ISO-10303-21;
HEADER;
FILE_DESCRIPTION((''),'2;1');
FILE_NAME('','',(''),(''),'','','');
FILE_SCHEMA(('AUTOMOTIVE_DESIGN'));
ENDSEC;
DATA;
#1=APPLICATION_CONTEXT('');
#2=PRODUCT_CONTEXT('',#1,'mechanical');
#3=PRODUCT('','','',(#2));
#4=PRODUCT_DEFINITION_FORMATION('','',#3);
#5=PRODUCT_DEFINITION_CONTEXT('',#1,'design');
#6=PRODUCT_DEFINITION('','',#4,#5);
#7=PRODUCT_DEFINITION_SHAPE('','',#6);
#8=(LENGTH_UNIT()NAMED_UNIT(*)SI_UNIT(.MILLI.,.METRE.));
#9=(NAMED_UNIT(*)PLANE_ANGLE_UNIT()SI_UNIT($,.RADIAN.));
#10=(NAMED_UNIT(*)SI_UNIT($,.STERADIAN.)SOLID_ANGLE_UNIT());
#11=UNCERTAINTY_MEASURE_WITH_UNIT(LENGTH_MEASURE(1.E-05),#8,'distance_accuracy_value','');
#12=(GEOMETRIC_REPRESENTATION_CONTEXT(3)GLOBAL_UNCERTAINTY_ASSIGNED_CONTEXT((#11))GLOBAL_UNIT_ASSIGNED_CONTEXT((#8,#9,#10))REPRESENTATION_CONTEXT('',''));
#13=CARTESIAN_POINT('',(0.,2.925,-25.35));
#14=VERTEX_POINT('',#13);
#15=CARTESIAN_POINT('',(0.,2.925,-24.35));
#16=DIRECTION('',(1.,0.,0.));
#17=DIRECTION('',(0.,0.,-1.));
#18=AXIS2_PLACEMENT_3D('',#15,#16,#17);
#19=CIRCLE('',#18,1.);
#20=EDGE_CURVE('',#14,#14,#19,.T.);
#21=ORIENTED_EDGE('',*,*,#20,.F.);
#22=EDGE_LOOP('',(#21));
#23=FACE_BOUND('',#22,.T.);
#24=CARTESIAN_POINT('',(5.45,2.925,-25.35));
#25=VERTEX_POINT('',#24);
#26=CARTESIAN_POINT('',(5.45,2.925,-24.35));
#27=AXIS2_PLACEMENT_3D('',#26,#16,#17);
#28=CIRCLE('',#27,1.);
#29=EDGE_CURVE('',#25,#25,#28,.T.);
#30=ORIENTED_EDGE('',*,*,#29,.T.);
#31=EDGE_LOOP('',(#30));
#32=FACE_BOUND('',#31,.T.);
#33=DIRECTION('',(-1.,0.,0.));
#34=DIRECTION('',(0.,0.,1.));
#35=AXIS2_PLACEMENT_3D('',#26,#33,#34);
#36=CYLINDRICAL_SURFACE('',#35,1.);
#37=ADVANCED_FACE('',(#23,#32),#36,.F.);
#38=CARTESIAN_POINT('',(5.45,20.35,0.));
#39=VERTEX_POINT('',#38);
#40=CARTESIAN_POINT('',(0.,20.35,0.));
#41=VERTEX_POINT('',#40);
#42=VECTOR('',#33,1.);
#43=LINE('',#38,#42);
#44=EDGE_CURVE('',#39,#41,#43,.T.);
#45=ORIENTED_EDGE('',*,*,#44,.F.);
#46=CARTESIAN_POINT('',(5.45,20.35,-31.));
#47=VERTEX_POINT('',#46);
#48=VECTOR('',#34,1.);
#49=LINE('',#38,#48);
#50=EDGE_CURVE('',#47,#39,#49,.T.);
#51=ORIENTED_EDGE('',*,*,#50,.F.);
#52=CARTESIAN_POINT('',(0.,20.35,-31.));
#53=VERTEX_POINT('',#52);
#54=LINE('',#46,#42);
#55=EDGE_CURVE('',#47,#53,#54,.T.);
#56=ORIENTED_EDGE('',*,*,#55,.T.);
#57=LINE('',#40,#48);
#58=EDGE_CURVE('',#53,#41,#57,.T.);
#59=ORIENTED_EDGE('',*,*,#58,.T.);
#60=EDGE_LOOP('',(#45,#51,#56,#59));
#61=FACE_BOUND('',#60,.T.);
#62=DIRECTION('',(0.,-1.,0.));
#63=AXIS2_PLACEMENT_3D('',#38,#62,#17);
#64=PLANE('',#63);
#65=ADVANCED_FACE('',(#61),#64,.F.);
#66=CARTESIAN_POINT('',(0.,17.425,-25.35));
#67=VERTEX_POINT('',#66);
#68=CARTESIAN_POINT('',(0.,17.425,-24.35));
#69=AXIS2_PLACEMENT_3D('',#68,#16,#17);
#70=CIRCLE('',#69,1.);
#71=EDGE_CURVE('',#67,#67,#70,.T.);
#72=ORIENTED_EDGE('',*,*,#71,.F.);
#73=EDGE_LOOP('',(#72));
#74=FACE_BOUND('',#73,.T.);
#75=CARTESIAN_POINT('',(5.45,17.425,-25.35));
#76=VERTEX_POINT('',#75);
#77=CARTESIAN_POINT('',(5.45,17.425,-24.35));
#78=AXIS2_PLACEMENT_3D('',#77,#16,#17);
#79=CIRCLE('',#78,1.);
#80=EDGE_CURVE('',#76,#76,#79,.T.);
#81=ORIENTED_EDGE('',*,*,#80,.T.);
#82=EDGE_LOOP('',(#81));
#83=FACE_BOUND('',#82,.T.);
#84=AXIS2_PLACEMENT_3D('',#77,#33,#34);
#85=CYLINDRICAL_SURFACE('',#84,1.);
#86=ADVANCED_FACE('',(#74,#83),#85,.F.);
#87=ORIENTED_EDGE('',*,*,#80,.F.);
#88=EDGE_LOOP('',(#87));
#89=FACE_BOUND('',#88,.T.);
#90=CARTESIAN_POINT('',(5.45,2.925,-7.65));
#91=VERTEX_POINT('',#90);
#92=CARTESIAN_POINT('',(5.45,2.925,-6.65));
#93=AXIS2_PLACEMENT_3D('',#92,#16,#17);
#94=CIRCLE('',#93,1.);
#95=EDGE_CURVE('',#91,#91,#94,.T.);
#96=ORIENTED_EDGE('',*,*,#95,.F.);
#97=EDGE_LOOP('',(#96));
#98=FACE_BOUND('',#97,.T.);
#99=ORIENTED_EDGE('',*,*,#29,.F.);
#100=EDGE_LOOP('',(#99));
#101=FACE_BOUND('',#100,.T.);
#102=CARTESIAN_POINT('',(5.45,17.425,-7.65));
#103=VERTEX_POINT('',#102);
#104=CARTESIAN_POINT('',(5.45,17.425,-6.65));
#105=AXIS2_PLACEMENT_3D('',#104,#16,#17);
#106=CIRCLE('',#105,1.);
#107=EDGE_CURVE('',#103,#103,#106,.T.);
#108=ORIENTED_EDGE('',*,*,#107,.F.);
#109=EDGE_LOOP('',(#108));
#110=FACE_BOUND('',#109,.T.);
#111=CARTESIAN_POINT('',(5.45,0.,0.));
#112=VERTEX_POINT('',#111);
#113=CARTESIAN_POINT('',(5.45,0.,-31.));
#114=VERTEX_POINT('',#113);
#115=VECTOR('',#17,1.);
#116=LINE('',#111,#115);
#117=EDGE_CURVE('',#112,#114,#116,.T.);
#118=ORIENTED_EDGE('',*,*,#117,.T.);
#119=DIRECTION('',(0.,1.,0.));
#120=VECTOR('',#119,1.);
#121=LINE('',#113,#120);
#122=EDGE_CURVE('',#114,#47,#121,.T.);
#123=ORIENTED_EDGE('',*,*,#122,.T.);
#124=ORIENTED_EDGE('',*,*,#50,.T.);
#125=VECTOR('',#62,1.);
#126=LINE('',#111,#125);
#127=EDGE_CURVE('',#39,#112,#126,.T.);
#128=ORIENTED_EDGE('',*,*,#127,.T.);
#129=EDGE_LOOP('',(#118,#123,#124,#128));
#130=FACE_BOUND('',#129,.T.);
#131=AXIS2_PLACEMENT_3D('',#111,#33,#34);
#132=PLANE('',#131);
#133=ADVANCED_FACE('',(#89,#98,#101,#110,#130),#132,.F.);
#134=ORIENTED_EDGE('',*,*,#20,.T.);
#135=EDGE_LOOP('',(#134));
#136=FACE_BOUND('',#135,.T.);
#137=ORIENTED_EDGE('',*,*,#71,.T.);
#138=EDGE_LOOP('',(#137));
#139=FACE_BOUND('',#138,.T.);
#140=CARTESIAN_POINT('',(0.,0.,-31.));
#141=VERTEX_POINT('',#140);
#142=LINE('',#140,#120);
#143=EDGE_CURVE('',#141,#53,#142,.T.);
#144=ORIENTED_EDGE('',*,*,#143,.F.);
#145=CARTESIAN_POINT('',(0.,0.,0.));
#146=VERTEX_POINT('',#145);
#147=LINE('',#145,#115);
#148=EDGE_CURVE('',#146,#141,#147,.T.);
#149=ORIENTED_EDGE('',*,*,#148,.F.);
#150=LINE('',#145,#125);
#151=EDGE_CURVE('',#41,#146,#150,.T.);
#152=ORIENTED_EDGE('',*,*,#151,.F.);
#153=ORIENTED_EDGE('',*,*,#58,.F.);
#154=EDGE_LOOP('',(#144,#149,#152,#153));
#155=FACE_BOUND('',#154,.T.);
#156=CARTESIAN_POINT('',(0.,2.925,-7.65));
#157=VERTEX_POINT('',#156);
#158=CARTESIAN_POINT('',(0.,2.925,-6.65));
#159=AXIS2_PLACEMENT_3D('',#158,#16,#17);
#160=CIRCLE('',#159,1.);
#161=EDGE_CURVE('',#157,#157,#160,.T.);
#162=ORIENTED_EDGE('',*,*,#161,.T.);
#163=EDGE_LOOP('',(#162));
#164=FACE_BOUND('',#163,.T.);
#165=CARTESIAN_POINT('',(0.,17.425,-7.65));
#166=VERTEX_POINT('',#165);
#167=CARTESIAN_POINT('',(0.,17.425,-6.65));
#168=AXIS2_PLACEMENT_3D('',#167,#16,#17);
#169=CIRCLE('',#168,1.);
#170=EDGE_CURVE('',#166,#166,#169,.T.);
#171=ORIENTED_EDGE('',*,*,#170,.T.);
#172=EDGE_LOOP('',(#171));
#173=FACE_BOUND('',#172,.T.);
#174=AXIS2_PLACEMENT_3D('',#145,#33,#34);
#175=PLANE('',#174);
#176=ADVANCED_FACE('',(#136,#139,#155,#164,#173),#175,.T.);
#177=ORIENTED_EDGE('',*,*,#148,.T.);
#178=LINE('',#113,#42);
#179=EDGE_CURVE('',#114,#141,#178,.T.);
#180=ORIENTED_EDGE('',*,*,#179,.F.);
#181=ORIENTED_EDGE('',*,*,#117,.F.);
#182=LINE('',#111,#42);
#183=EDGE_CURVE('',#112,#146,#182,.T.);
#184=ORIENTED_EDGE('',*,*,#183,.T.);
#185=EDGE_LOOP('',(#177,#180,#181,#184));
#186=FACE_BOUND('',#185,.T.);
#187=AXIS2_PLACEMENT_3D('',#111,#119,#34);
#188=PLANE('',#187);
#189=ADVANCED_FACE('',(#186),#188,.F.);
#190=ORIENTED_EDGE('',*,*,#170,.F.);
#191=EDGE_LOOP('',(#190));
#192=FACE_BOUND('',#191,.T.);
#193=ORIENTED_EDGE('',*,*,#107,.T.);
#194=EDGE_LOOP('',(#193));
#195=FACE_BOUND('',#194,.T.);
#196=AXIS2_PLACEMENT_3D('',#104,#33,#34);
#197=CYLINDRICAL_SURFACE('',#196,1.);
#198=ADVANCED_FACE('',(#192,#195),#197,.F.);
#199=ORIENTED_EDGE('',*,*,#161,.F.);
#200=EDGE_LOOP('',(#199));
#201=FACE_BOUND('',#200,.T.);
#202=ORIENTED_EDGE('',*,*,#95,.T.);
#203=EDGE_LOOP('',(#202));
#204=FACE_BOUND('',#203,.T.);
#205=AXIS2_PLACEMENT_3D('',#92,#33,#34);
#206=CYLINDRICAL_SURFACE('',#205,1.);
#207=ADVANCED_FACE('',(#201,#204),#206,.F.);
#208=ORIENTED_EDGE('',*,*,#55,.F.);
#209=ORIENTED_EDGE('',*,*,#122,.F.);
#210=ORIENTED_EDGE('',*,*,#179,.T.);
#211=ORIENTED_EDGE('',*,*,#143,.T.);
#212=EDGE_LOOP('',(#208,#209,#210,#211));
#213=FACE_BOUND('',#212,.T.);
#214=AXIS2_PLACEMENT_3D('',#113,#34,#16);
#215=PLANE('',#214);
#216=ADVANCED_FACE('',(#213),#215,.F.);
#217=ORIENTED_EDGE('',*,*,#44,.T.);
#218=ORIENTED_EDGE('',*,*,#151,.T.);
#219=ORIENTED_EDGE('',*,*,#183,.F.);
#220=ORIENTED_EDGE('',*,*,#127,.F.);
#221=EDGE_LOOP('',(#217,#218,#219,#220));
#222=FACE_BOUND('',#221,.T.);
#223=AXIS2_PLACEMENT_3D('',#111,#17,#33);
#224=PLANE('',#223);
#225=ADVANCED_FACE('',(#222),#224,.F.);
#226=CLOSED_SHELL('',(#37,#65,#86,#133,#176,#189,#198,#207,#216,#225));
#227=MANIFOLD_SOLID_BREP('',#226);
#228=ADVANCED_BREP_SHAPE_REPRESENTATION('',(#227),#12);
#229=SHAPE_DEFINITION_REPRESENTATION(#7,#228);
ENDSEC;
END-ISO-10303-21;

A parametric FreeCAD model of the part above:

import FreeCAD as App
import Part
import Sketcher

V = App.Vector


def add_polygon(sketch, points):
    """Adds a closed chain of lines whose ends are joined by coincident constraints."""
    first, n = sketch.GeometryCount, len(points)
    for a, b in zip(points, points[1:] + points[:1]):
        sketch.addGeometry(Part.LineSegment(App.Vector(*a, 0), App.Vector(*b, 0)), False)
    for i in range(n):
        sketch.addConstraint(Sketcher.Constraint("Coincident", first + i, 2, first + (i + 1) % n, 1))

doc = App.newDocument("Part")
params = doc.addObject("Spreadsheet::Sheet", "Params")
for row, (alias, value) in enumerate([
    ("sketch1_diameter", "2 mm"),
    ("sketch1_height", "31 mm"),
    ("sketch1_width", "20.35 mm"),
    ("pad1_length", "5.45 mm"),
], start=1):
    params.set(f"A{row}", alias)
    params.set(f"B{row}", "=" + value)
    params.setAlias(f"B{row}", alias)

body = doc.addObject("PartDesign::Body", "Body")

sketch1 = doc.addObject("Sketcher::SketchObject", "Sketch")
body.addObject(sketch1)
sketch1.AttachmentSupport = (doc.YZ_Plane, [""])
sketch1.MapMode = "FlatFace"
add_polygon(sketch1, [(20.35, 0), (0, 0), (0, -31), (20.35, -31)])
sketch1.addGeometry(Part.Circle(V(2.925, -6.65, 0), V(0, 0, 1), 1), False)
sketch1.addGeometry(Part.Circle(V(2.925, -24.35, 0), V(0, 0, 1), 1), False)
sketch1.addGeometry(Part.Circle(V(17.425, -6.65, 0), V(0, 0, 1), 1), False)
sketch1.addGeometry(Part.Circle(V(17.425, -24.35, 0), V(0, 0, 1), 1), False)
sketch1.addConstraint([
    Sketcher.Constraint("Horizontal", 0),
    Sketcher.Constraint("Vertical", 1),
    Sketcher.Constraint("Horizontal", 2),
    Sketcher.Constraint("Vertical", 3),
    Sketcher.Constraint("Coincident", 0, 2, -1, 1),
    Sketcher.Constraint("Equal", 4, 5),
    Sketcher.Constraint("Equal", 5, 6),
    Sketcher.Constraint("Equal", 6, 7),
    Sketcher.Constraint("Horizontal", 4, 3, 6, 3),
    Sketcher.Constraint("Horizontal", 5, 3, 7, 3),
    Sketcher.Constraint("Vertical", 4, 3, 5, 3),
    Sketcher.Constraint("Vertical", 6, 3, 7, 3),
    Sketcher.Constraint("Diameter", 4, 2.0),
    Sketcher.Constraint("DistanceY", 1, 2, 1, 1, 31.0),
    Sketcher.Constraint("DistanceX", 0, 2, 0, 1, 20.35),
    Sketcher.Constraint("DistanceY", 5, 3, 4, 3, 17.7),
    Sketcher.Constraint("DistanceX", 4, 3, 6, 3, 14.5),
    Sketcher.Constraint("DistanceY", 4, 3, -1, 1, 6.65),
    Sketcher.Constraint("DistanceX", -1, 1, 4, 3, 2.925),
])
sketch1.setExpression("Constraints[16]", "Params.sketch1_diameter")
sketch1.setExpression("Constraints[17]", "Params.sketch1_height")
sketch1.setExpression("Constraints[18]", "Params.sketch1_width")
pad1 = doc.addObject("PartDesign::Pad", "Pad")
body.addObject(pad1)
pad1.Profile = sketch1
pad1.setExpression("Length", "Params.pad1_length")

doc.recompute()
